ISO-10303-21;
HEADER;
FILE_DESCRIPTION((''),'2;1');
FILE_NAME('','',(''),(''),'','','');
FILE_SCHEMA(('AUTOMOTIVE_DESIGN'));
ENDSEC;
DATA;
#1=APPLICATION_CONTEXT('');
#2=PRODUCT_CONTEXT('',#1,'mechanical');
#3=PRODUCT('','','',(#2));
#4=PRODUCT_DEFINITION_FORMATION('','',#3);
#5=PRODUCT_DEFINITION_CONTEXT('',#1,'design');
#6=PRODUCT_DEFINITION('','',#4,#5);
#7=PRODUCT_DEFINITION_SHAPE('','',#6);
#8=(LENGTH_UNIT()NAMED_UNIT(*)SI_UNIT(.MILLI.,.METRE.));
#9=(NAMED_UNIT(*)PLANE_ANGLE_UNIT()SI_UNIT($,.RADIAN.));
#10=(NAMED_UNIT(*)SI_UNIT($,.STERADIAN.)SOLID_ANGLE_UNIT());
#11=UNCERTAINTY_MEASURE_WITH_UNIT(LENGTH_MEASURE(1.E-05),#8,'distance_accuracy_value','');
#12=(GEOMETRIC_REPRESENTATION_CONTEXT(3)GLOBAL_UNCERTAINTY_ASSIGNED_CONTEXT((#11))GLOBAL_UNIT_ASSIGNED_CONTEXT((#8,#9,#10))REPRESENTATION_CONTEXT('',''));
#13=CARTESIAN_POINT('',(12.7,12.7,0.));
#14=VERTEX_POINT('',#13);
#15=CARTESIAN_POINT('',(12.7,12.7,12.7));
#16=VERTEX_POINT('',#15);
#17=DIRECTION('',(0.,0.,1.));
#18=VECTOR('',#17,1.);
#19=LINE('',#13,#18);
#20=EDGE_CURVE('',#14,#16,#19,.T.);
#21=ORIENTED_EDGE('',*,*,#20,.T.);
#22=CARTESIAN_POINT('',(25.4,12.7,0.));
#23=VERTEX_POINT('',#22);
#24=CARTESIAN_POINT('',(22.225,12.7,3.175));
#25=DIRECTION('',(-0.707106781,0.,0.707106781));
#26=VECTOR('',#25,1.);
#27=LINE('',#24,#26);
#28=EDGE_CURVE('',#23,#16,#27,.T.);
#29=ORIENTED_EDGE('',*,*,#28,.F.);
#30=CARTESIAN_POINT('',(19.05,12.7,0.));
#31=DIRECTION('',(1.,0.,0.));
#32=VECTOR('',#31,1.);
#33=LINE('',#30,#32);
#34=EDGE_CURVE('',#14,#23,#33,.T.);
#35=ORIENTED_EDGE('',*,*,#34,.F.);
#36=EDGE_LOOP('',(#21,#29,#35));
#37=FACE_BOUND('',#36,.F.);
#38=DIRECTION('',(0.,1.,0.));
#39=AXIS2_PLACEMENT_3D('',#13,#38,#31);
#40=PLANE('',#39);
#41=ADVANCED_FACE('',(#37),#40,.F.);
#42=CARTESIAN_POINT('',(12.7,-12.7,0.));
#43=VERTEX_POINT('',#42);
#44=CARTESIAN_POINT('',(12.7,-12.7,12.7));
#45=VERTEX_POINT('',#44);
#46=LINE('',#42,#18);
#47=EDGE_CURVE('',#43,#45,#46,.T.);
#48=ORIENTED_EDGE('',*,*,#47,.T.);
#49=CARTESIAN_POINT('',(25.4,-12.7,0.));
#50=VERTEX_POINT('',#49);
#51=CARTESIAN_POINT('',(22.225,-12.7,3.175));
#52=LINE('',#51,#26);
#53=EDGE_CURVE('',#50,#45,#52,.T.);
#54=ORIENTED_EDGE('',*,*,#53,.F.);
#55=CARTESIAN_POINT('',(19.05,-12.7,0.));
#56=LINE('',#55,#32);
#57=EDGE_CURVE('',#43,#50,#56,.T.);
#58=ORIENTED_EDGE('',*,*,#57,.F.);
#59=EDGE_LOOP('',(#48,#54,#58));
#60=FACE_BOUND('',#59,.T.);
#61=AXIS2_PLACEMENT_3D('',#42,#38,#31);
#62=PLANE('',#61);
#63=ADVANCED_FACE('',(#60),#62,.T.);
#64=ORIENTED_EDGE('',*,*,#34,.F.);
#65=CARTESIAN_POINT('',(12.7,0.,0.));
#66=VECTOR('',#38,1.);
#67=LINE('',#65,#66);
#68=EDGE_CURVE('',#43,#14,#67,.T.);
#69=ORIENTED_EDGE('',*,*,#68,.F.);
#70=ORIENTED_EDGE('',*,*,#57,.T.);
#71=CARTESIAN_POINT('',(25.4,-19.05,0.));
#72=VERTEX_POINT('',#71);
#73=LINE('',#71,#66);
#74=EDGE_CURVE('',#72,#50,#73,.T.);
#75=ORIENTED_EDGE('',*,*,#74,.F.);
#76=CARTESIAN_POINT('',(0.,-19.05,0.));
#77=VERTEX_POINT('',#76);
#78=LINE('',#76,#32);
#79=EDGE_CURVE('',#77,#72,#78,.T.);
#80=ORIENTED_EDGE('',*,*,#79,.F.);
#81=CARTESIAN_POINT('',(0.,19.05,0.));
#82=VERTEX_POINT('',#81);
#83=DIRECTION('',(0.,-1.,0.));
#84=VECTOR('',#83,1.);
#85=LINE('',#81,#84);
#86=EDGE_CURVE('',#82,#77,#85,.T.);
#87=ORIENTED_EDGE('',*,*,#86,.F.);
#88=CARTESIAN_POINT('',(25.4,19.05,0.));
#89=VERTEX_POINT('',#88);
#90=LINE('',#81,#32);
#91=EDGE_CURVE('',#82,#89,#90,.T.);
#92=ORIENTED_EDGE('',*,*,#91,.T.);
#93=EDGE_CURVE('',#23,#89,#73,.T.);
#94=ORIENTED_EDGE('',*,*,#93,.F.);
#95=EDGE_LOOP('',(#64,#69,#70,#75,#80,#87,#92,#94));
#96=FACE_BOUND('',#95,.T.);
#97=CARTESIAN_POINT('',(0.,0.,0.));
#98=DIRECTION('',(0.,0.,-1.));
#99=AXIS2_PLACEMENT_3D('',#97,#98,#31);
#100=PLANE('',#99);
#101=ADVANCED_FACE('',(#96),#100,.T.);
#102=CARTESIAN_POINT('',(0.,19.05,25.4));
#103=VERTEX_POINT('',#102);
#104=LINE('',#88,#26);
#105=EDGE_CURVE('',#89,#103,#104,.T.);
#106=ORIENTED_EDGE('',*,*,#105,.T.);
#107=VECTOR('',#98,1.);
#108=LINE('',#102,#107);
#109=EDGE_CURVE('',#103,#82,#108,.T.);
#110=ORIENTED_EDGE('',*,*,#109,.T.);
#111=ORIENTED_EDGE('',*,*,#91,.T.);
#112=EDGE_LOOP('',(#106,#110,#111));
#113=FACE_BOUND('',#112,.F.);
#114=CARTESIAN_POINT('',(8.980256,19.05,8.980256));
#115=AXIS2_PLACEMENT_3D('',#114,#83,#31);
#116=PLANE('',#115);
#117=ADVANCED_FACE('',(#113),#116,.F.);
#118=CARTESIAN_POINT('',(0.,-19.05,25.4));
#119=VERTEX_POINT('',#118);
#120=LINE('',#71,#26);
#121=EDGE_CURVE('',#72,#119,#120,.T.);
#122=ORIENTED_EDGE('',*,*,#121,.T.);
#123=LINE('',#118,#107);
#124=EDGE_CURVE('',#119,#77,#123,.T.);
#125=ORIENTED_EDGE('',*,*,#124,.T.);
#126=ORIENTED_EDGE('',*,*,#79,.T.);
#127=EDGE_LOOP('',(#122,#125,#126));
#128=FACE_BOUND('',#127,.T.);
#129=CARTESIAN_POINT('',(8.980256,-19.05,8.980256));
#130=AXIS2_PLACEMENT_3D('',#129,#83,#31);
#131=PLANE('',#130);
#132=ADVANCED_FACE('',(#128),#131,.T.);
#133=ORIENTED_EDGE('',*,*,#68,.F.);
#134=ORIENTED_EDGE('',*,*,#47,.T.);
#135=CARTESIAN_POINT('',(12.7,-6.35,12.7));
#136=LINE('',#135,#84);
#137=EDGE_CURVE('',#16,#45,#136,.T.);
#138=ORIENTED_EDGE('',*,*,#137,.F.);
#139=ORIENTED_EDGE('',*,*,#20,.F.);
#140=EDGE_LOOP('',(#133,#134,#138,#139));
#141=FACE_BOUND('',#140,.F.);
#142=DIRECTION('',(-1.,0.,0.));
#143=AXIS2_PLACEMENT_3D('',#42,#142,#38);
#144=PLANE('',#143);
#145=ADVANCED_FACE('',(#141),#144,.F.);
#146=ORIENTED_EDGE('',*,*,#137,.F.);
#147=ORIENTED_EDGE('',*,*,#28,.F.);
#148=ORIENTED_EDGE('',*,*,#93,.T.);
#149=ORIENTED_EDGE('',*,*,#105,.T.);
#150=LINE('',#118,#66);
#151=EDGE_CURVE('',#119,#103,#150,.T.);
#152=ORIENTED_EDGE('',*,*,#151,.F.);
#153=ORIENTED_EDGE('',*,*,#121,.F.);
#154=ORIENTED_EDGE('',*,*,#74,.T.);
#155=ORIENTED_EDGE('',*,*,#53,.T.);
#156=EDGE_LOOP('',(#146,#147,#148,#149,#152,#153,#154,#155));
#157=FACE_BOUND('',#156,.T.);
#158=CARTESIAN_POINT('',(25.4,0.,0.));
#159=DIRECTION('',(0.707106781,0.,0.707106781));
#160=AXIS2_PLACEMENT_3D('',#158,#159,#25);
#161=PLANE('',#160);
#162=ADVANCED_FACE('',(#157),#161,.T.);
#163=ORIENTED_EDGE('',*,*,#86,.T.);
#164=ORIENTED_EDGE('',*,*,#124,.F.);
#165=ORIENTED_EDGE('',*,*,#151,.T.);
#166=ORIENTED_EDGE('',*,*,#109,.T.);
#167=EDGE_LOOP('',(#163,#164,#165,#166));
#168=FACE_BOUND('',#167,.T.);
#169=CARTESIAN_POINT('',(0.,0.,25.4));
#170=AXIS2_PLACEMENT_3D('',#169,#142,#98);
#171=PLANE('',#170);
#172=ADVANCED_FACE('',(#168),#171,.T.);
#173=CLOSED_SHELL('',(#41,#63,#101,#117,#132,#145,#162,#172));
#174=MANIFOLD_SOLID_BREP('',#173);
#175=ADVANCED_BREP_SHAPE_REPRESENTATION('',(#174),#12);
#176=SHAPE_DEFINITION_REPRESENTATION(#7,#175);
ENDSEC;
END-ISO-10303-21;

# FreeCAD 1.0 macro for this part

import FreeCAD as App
import Part
import Sketcher
Q = App.Units.Quantity


def add_polygon(sketch, points):
    """Adds a closed chain of lines whose ends are joined by coincident constraints."""
    first, n = sketch.GeometryCount, len(points)
    for a, b in zip(points, points[1:] + points[:1]):
        sketch.addGeometry(Part.LineSegment(App.Vector(*a, 0), App.Vector(*b, 0)), False)
    for i in range(n):
        sketch.addConstraint(Sketcher.Constraint("Coincident", first + i, 2, first + (i + 1) % n, 1))

doc = App.newDocument("Part")
body = doc.addObject("PartDesign::Body", "Body")

# Sketch on XZ plane
sketch1 = body.newObject("Sketcher::SketchObject", "Sketch")
sketch1.AttachmentSupport = (doc.getObject("XZ_Plane"), [""])
sketch1.MapMode = "FlatFace"
add_polygon(sketch1, [(0, 25.4), (0, 0), (25.4, 0)])  # lines 0-2
sketch1.addConstraint([
    Sketcher.Constraint("Vertical", 0),
    Sketcher.Constraint("Horizontal", 1),
    Sketcher.Constraint("Coincident", 0, 2, -1, 1),
    Sketcher.Constraint("Equal", 1, 0),
    Sketcher.Constraint("DistanceX", 1, 1, 1, 2, Q("1 in")),
])
pad1 = body.newObject("PartDesign::Pad", "Pad")
pad1.Profile = sketch1
pad1.Length = Q("1.5 in")
pad1.Midplane = True

# Sketch on XY plane
sketch2 = body.newObject("Sketcher::SketchObject", "Sketch001")
sketch2.AttachmentSupport = (doc.getObject("XY_Plane"), [""])
sketch2.MapMode = "FlatFace"
add_polygon(sketch2, [(12.7, 12.7), (12.7, -12.7), (25.4, -12.7), (25.4, 12.7)])  # lines 0-3
sketch2.addConstraint([
    Sketcher.Constraint("Vertical", 0),
    Sketcher.Constraint("Horizontal", 1),
    Sketcher.Constraint("Vertical", 2),
    Sketcher.Constraint("Horizontal", 3),
    Sketcher.Constraint("DistanceY", 0, 2, 0, 1, Q("1 in")),
    Sketcher.Constraint("DistanceX", 1, 1, 1, 2, Q("0.5 in")),
    Sketcher.Constraint("DistanceX", -1, 1, 1, 2, Q("1 in")),
    Sketcher.Constraint("DistanceY", 0, 2, -1, 1, Q("0.5 in")),
])
pocket1 = body.newObject("PartDesign::Pocket", "Pocket")
pocket1.Profile = sketch2
pocket1.Length = Q("1 in")
pocket1.Reversed = True

doc.recompute()
